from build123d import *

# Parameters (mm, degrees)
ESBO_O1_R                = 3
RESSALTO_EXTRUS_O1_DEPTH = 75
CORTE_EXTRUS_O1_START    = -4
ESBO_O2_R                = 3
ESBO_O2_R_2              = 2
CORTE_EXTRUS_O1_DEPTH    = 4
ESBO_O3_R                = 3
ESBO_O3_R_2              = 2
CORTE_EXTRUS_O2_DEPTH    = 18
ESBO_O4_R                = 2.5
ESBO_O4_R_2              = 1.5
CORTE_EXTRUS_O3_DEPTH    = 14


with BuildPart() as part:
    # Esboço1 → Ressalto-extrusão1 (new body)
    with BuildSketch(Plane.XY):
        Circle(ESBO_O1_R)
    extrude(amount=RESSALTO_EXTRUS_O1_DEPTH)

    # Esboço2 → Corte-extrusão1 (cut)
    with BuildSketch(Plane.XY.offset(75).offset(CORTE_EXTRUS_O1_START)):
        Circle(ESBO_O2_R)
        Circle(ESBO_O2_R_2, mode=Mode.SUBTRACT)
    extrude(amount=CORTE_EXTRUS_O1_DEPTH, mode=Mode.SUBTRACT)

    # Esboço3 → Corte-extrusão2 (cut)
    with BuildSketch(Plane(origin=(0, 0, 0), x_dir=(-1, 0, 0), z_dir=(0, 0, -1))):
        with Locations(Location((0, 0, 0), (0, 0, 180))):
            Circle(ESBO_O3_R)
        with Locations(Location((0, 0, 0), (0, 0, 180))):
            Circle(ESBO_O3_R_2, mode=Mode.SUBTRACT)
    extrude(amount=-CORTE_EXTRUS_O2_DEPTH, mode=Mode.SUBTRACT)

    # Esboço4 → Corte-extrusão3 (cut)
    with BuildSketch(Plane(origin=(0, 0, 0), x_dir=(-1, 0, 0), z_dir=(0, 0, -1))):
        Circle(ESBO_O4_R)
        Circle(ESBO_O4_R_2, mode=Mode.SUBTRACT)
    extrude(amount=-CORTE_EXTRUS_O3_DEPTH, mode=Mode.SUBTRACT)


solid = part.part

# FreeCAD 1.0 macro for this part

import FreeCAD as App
import Part
import Sketcher

V = App.Vector

doc = App.newDocument("Part")
body = doc.addObject("PartDesign::Body", "Body")

# Sketch on XY plane
sketch1 = body.newObject("Sketcher::SketchObject", "Sketch")
sketch1.AttachmentSupport = (doc.getObject("XY_Plane"), [""])
sketch1.MapMode = "FlatFace"
sketch1.addGeometry(Part.Circle(V(0, 0, 0), V(0, 0, 1), 3), False)
sketch1.addConstraint(Sketcher.Constraint("Coincident", 0, 3, -1, 1))
sketch1.addConstraint(Sketcher.Constraint("Diameter", 0, 6.0))
pad1 = body.newObject("PartDesign::Pad", "Pad")
pad1.Profile = sketch1
pad1.Length = 75

# Sketch on XY plane
sketch2 = body.newObject("Sketcher::SketchObject", "Sketch001")
sketch2.AttachmentSupport = (doc.getObject("XY_Plane"), [""])
sketch2.MapMode = "FlatFace"
sketch2.AttachmentOffset = App.Placement(V(0, 0, 71), App.Rotation())
sketch2.addGeometry(Part.Circle(V(0, 0, 0), V(0, 0, 1), 3), False)
sketch2.addGeometry(Part.Circle(V(0, 0, 0), V(0, 0, 1), 2), False)
sketch2.addConstraint(Sketcher.Constraint("Coincident", 0, 3, -1, 1))
sketch2.addConstraint(Sketcher.Constraint("Coincident", 1, 3, -1, 1))
sketch2.addConstraint(Sketcher.Constraint("Diameter", 0, 6.0))
sketch2.addConstraint(Sketcher.Constraint("Diameter", 1, 4.0))
pocket1 = body.newObject("PartDesign::Pocket", "Pocket")
pocket1.Profile = sketch2
pocket1.Length = 4
pocket1.Reversed = True

# Sketch on XY plane
sketch3 = body.newObject("Sketcher::SketchObject", "Sketch002")
sketch3.AttachmentSupport = (doc.getObject("XY_Plane"), [""])
sketch3.MapMode = "FlatFace"
sketch3.addGeometry(Part.Circle(V(0, 0, 0), V(0, 0, 1), 3), False)
sketch3.addGeometry(Part.Circle(V(0, 0, 0), V(0, 0, 1), 2), False)
sketch3.addConstraint(Sketcher.Constraint("Coincident", 0, 3, -1, 1))
sketch3.addConstraint(Sketcher.Constraint("Coincident", 1, 3, -1, 1))
sketch3.addConstraint(Sketcher.Constraint("Diameter", 0, 6.0))
sketch3.addConstraint(Sketcher.Constraint("Diameter", 1, 4.0))
pocket2 = body.newObject("PartDesign::Pocket", "Pocket001")
pocket2.Profile = sketch3
pocket2.Length = 18
pocket2.Reversed = True

# Sketch on XY plane
sketch4 = body.newObject("Sketcher::SketchObject", "Sketch003")
sketch4.AttachmentSupport = (doc.getObject("XY_Plane"), [""])
sketch4.MapMode = "FlatFace"
sketch4.addGeometry(Part.Circle(V(0, 0, 0), V(0, 0, 1), 2.5), False)
sketch4.addGeometry(Part.Circle(V(0, 0, 0), V(0, 0, 1), 1.5), False)
sketch4.addConstraint(Sketcher.Constraint("Coincident", 0, 3, -1, 1))
sketch4.addConstraint(Sketcher.Constraint("Coincident", 1, 3, -1, 1))
sketch4.addConstraint(Sketcher.Constraint("Diameter", 0, 5.0))
sketch4.addConstraint(Sketcher.Constraint("Diameter", 1, 3.0))
pocket3 = body.newObject("PartDesign::Pocket", "Pocket002")
pocket3.Profile = sketch4
pocket3.Length = 14
pocket3.Reversed = True

doc.recompute()
